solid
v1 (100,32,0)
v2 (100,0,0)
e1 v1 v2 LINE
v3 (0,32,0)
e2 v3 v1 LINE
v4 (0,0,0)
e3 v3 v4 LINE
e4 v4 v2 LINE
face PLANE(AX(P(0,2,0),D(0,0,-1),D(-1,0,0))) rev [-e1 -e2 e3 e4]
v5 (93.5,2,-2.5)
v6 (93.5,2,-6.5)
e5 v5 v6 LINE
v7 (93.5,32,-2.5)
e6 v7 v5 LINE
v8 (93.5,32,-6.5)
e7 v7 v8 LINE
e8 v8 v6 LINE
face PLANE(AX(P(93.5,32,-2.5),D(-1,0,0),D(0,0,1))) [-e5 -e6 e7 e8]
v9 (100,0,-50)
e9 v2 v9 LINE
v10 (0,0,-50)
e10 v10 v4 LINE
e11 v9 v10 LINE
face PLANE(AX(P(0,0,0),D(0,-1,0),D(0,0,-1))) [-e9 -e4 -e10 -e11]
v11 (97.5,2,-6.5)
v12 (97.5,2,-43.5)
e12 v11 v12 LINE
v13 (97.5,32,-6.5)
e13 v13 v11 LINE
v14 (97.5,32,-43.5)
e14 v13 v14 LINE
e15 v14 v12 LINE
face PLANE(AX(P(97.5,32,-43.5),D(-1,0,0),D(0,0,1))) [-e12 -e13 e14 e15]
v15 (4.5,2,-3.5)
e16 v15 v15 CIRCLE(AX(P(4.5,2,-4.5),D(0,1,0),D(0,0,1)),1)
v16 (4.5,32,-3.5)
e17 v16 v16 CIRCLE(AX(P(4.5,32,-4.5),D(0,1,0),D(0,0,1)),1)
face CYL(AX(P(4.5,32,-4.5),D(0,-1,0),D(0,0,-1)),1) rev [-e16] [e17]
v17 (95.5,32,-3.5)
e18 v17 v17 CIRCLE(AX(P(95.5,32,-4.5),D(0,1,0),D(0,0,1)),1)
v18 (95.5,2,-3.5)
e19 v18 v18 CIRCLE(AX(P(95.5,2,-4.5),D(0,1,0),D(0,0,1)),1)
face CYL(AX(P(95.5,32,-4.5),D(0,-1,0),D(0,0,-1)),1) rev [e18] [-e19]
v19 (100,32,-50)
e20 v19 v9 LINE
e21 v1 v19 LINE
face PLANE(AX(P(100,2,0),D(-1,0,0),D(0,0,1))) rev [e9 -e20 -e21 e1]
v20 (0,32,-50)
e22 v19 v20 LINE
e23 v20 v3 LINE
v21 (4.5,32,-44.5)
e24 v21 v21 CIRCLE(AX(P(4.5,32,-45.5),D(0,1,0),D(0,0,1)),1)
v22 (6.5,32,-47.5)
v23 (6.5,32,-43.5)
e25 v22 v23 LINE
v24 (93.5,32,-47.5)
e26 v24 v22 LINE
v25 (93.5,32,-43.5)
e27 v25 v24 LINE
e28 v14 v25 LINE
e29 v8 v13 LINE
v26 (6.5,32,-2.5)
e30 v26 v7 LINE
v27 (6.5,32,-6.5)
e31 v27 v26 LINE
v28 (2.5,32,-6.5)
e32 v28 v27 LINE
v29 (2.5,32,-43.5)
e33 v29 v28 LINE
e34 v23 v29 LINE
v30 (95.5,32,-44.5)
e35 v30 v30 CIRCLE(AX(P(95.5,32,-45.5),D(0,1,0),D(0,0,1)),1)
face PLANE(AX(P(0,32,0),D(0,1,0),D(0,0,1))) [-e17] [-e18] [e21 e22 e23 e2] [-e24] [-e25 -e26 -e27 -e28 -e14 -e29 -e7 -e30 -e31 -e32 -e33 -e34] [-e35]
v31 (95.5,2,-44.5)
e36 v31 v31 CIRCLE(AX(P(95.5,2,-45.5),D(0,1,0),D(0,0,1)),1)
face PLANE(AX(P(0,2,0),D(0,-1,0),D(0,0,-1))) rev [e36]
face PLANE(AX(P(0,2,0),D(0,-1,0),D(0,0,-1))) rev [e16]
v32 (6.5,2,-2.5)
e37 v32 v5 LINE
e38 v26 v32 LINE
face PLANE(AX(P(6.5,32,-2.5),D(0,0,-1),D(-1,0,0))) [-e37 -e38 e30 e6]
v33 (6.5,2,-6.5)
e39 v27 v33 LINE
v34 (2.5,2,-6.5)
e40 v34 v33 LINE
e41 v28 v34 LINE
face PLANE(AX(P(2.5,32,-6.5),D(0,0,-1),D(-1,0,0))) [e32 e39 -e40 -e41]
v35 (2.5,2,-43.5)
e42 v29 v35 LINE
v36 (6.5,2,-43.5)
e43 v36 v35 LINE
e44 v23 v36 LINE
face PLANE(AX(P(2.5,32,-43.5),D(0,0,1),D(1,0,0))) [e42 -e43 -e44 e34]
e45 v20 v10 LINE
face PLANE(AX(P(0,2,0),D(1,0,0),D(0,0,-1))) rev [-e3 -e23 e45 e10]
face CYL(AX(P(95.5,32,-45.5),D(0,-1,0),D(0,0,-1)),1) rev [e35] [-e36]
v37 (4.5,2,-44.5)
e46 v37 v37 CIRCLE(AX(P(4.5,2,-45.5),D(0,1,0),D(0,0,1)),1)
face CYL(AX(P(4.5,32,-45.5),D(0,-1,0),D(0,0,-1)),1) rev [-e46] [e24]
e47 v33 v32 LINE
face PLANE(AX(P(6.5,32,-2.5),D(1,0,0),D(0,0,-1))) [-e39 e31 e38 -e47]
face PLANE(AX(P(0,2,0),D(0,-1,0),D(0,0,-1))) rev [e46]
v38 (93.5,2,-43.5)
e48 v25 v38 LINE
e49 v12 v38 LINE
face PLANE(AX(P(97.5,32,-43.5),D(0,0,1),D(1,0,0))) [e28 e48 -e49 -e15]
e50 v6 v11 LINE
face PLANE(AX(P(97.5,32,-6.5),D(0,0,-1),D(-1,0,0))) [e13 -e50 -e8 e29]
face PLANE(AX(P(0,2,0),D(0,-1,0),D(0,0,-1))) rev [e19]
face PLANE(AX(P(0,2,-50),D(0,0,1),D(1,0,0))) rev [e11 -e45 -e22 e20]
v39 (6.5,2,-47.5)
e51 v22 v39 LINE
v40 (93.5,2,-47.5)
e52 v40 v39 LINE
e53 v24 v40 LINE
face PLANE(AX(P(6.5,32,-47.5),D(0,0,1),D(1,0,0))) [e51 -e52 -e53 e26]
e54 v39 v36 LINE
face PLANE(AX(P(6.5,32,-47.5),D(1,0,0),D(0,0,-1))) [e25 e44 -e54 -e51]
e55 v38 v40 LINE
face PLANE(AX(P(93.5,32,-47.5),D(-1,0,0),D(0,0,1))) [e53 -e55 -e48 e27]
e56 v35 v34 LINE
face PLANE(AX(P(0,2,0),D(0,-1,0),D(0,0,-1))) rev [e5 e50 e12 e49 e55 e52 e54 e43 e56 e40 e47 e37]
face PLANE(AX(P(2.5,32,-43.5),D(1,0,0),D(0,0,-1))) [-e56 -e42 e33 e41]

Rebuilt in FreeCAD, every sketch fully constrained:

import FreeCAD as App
import Part
import Sketcher
from FreeCAD import Vector
Q = App.Units.Quantity

doc = App.newDocument("Part")
params = doc.addObject("Spreadsheet::Sheet", "Params")
for row, (alias, value) in enumerate([
    ("sketch1_width", "100 mm"),
    ("sketch1_height", "50 mm"),
    ("pad1_length", "2 mm"),
    ("sketch2_diameter", "2 mm"),
    ("sketch2_width", "100 mm"),
    ("sketch2_width2", "87 mm"),
    ("sketch2_width3", "4 mm"),
    ("sketch2_height", "50 mm"),
    ("pad2_length", "30 mm"),
], start=1):
    params.set(f"A{row}", alias)
    params.set(f"B{row}", "=" + value)
    params.setAlias(f"B{row}", alias)

body = doc.addObject("PartDesign::Body", "Body")

sketch1 = doc.addObject("Sketcher::SketchObject", "Sketch")
body.addObject(sketch1)
sketch1.AttachmentSupport = (doc.XZ_Plane, [""])
sketch1.MapMode = "FlatFace"
sketch1.addGeometry(Part.LineSegment(Vector(0, -50, 0), Vector(0, 0, 0)), False)
sketch1.addGeometry(Part.LineSegment(Vector(0, 0, 0), Vector(100, 0, 0)), False)
sketch1.addGeometry(Part.LineSegment(Vector(100, 0, 0), Vector(100, -50, 0)), False)
sketch1.addGeometry(Part.LineSegment(Vector(100, -50, 0), Vector(0, -50, 0)), False)
sketch1.addConstraint(Sketcher.Constraint("Coincident", 0, 2, 1, 1))
sketch1.addConstraint(Sketcher.Constraint("Coincident", 1, 2, 2, 1))
sketch1.addConstraint(Sketcher.Constraint("Coincident", 2, 2, 3, 1))
sketch1.addConstraint(Sketcher.Constraint("Coincident", 3, 2, 0, 1))
sketch1.addConstraint(Sketcher.Constraint("Vertical", 0))
sketch1.addConstraint(Sketcher.Constraint("Horizontal", 1))
sketch1.addConstraint(Sketcher.Constraint("Vertical", 2))
sketch1.addConstraint(Sketcher.Constraint("Horizontal", 3))
sketch1.addConstraint(Sketcher.Constraint("Coincident", 0, 2, -1, 1))
sketch1.addConstraint(Sketcher.Constraint("DistanceX", 1, 1, 1, 2, Q("100 mm")))
sketch1.addConstraint(Sketcher.Constraint("DistanceY", 0, 1, 0, 2, Q("50 mm")))
sketch1.setExpression("Constraints[9]", "Params.sketch1_width")
sketch1.setExpression("Constraints[10]", "Params.sketch1_height")
pad1 = doc.addObject("PartDesign::Pad", "Pad")
body.addObject(pad1)
pad1.Profile = sketch1
pad1.setExpression("Length", "Params.pad1_length")
pad1.Reversed = True

sketch2 = doc.addObject("Sketcher::SketchObject", "Sketch001")
body.addObject(sketch2)
sketch2.AttachmentSupport = (doc.XZ_Plane, [""])
sketch2.MapMode = "FlatFace"
sketch2.AttachmentOffset = App.Placement(Vector(0, 0, -2), App.Rotation())
sketch2.addGeometry(Part.LineSegment(Vector(0, -50, 0), Vector(0, 0, 0)), False)
sketch2.addGeometry(Part.LineSegment(Vector(0, 0, 0), Vector(100, 0, 0)), False)
sketch2.addGeometry(Part.LineSegment(Vector(100, 0, 0), Vector(100, -50, 0)), False)
sketch2.addGeometry(Part.LineSegment(Vector(100, -50, 0), Vector(0, -50, 0)), False)
sketch2.addGeometry(Part.Circle(Vector(4.5, -4.5, 0), Vector(0, 0, 1), 1), False)
sketch2.addGeometry(Part.Circle(Vector(95.5, -4.5, 0), Vector(0, 0, 1), 1), False)
sketch2.addGeometry(Part.Circle(Vector(4.5, -45.5, 0), Vector(0, 0, 1), 1), False)
sketch2.addGeometry(Part.LineSegment(Vector(6.5, -43.5, 0), Vector(6.5, -47.5, 0)), False)
sketch2.addGeometry(Part.LineSegment(Vector(6.5, -47.5, 0), Vector(93.5, -47.5, 0)), False)
sketch2.addGeometry(Part.LineSegment(Vector(93.5, -47.5, 0), Vector(93.5, -43.5, 0)), False)
sketch2.addGeometry(Part.LineSegment(Vector(93.5, -43.5, 0), Vector(97.5, -43.5, 0)), False)
sketch2.addGeometry(Part.LineSegment(Vector(97.5, -43.5, 0), Vector(97.5, -6.5, 0)), False)
sketch2.addGeometry(Part.LineSegment(Vector(97.5, -6.5, 0), Vector(93.5, -6.5, 0)), False)
sketch2.addGeometry(Part.LineSegment(Vector(93.5, -6.5, 0), Vector(93.5, -2.5, 0)), False)
sketch2.addGeometry(Part.LineSegment(Vector(93.5, -2.5, 0), Vector(6.5, -2.5, 0)), False)
sketch2.addGeometry(Part.LineSegment(Vector(6.5, -2.5, 0), Vector(6.5, -6.5, 0)), False)
sketch2.addGeometry(Part.LineSegment(Vector(6.5, -6.5, 0), Vector(2.5, -6.5, 0)), False)
sketch2.addGeometry(Part.LineSegment(Vector(2.5, -6.5, 0), Vector(2.5, -43.5, 0)), False)
sketch2.addGeometry(Part.LineSegment(Vector(2.5, -43.5, 0), Vector(6.5, -43.5, 0)), False)
sketch2.addGeometry(Part.Circle(Vector(95.5, -45.5, 0), Vector(0, 0, 1), 1), False)
sketch2.addConstraint(Sketcher.Constraint("Coincident", 0, 2, 1, 1))
sketch2.addConstraint(Sketcher.Constraint("Coincident", 1, 2, 2, 1))
sketch2.addConstraint(Sketcher.Constraint("Coincident", 2, 2, 3, 1))
sketch2.addConstraint(Sketcher.Constraint("Coincident", 3, 2, 0, 1))
sketch2.addConstraint(Sketcher.Constraint("Coincident", 7, 2, 8, 1))
sketch2.addConstraint(Sketcher.Constraint("Coincident", 8, 2, 9, 1))
sketch2.addConstraint(Sketcher.Constraint("Coincident", 9, 2, 10, 1))
sketch2.addConstraint(Sketcher.Constraint("Coincident", 10, 2, 11, 1))
sketch2.addConstraint(Sketcher.Constraint("Coincident", 11, 2, 12, 1))
sketch2.addConstraint(Sketcher.Constraint("Coincident", 12, 2, 13, 1))
sketch2.addConstraint(Sketcher.Constraint("Coincident", 13, 2, 14, 1))
sketch2.addConstraint(Sketcher.Constraint("Coincident", 14, 2, 15, 1))
sketch2.addConstraint(Sketcher.Constraint("Coincident", 15, 2, 16, 1))
sketch2.addConstraint(Sketcher.Constraint("Coincident", 16, 2, 17, 1))
sketch2.addConstraint(Sketcher.Constraint("Coincident", 17, 2, 18, 1))
sketch2.addConstraint(Sketcher.Constraint("Coincident", 18, 2, 7, 1))
sketch2.addConstraint(Sketcher.Constraint("Vertical", 0))
sketch2.addConstraint(Sketcher.Constraint("Horizontal", 1))
sketch2.addConstraint(Sketcher.Constraint("Vertical", 2))
sketch2.addConstraint(Sketcher.Constraint("Horizontal", 3))
sketch2.addConstraint(Sketcher.Constraint("Vertical", 7))
sketch2.addConstraint(Sketcher.Constraint("Horizontal", 8))
sketch2.addConstraint(Sketcher.Constraint("Vertical", 9))
sketch2.addConstraint(Sketcher.Constraint("Horizontal", 10))
sketch2.addConstraint(Sketcher.Constraint("Vertical", 11))
sketch2.addConstraint(Sketcher.Constraint("Horizontal", 12))
sketch2.addConstraint(Sketcher.Constraint("Vertical", 13))
sketch2.addConstraint(Sketcher.Constraint("Horizontal", 14))
sketch2.addConstraint(Sketcher.Constraint("Vertical", 15))
sketch2.addConstraint(Sketcher.Constraint("Horizontal", 16))
sketch2.addConstraint(Sketcher.Constraint("Vertical", 17))
sketch2.addConstraint(Sketcher.Constraint("Horizontal", 18))
sketch2.addConstraint(Sketcher.Constraint("Coincident", 0, 2, -1, 1))
sketch2.addConstraint(Sketcher.Constraint("Equal", 4, 5))
sketch2.addConstraint(Sketcher.Constraint("Equal", 5, 6))
sketch2.addConstraint(Sketcher.Constraint("Equal", 6, 19))
sketch2.addConstraint(Sketcher.Constraint("Horizontal", 4, 3, 5, 3))
sketch2.addConstraint(Sketcher.Constraint("Horizontal", 6, 3, 19, 3))
sketch2.addConstraint(Sketcher.Constraint("Horizontal", 12, 2, 15, 2))
sketch2.addConstraint(Sketcher.Constraint("Horizontal", 10, 2, 17, 2))
sketch2.addConstraint(Sketcher.Constraint("Vertical", 4, 3, 6, 3))
sketch2.addConstraint(Sketcher.Constraint("Vertical", 5, 3, 19, 3))
sketch2.addConstraint(Sketcher.Constraint("Vertical", 9, 2, 12, 2))
sketch2.addConstraint(Sketcher.Constraint("Vertical", 7, 2, 14, 2))
sketch2.addConstraint(Sketcher.Constraint("Equal", 12, 16))
sketch2.addConstraint(Sketcher.Constraint("Equal", 18, 7))
sketch2.addConstraint(Sketcher.Constraint("Equal", 9, 13))
sketch2.addConstraint(Sketcher.Constraint("Diameter", 4, Q("2 mm")))
sketch2.addConstraint(Sketcher.Constraint("DistanceX", 1, 1, 1, 2, Q("100 mm")))
sketch2.addConstraint(Sketcher.Constraint("DistanceX", 8, 1, 8, 2, Q("87 mm")))
sketch2.addConstraint(Sketcher.Constraint("DistanceX", 10, 1, 10, 2, Q("4 mm")))
sketch2.addConstraint(Sketcher.Constraint("DistanceY", 0, 1, 0, 2, Q("50 mm")))
sketch2.addConstraint(Sketcher.Constraint("DistanceY", 11, 1, 11, 2, Q("37 mm")))
sketch2.addConstraint(Sketcher.Constraint("DistanceX", 4, 3, 5, 3, Q("91 mm")))
sketch2.addConstraint(Sketcher.Constraint("DistanceY", 6, 3, 4, 3, Q("41 mm")))
sketch2.addConstraint(Sketcher.Constraint("DistanceX", 6, 3, 7, 2, Q("2 mm")))
sketch2.addConstraint(Sketcher.Constraint("DistanceY", 7, 2, 6, 3, Q("2 mm")))
sketch2.addConstraint(Sketcher.Constraint("DistanceX", -1, 1, 4, 3, Q("4.5 mm")))
sketch2.addConstraint(Sketcher.Constraint("DistanceY", 4, 3, -1, 1, Q("4.5 mm")))
sketch2.setExpression("Constraints[47]", "Params.sketch2_diameter")
sketch2.setExpression("Constraints[48]", "Params.sketch2_width")
sketch2.setExpression("Constraints[49]", "Params.sketch2_width2")
sketch2.setExpression("Constraints[50]", "Params.sketch2_width3")
sketch2.setExpression("Constraints[51]", "Params.sketch2_height")
pad2 = doc.addObject("PartDesign::Pad", "Pad001")
body.addObject(pad2)
pad2.Profile = sketch2
pad2.setExpression("Length", "Params.pad2_length")
pad2.Reversed = True

doc.recompute()
